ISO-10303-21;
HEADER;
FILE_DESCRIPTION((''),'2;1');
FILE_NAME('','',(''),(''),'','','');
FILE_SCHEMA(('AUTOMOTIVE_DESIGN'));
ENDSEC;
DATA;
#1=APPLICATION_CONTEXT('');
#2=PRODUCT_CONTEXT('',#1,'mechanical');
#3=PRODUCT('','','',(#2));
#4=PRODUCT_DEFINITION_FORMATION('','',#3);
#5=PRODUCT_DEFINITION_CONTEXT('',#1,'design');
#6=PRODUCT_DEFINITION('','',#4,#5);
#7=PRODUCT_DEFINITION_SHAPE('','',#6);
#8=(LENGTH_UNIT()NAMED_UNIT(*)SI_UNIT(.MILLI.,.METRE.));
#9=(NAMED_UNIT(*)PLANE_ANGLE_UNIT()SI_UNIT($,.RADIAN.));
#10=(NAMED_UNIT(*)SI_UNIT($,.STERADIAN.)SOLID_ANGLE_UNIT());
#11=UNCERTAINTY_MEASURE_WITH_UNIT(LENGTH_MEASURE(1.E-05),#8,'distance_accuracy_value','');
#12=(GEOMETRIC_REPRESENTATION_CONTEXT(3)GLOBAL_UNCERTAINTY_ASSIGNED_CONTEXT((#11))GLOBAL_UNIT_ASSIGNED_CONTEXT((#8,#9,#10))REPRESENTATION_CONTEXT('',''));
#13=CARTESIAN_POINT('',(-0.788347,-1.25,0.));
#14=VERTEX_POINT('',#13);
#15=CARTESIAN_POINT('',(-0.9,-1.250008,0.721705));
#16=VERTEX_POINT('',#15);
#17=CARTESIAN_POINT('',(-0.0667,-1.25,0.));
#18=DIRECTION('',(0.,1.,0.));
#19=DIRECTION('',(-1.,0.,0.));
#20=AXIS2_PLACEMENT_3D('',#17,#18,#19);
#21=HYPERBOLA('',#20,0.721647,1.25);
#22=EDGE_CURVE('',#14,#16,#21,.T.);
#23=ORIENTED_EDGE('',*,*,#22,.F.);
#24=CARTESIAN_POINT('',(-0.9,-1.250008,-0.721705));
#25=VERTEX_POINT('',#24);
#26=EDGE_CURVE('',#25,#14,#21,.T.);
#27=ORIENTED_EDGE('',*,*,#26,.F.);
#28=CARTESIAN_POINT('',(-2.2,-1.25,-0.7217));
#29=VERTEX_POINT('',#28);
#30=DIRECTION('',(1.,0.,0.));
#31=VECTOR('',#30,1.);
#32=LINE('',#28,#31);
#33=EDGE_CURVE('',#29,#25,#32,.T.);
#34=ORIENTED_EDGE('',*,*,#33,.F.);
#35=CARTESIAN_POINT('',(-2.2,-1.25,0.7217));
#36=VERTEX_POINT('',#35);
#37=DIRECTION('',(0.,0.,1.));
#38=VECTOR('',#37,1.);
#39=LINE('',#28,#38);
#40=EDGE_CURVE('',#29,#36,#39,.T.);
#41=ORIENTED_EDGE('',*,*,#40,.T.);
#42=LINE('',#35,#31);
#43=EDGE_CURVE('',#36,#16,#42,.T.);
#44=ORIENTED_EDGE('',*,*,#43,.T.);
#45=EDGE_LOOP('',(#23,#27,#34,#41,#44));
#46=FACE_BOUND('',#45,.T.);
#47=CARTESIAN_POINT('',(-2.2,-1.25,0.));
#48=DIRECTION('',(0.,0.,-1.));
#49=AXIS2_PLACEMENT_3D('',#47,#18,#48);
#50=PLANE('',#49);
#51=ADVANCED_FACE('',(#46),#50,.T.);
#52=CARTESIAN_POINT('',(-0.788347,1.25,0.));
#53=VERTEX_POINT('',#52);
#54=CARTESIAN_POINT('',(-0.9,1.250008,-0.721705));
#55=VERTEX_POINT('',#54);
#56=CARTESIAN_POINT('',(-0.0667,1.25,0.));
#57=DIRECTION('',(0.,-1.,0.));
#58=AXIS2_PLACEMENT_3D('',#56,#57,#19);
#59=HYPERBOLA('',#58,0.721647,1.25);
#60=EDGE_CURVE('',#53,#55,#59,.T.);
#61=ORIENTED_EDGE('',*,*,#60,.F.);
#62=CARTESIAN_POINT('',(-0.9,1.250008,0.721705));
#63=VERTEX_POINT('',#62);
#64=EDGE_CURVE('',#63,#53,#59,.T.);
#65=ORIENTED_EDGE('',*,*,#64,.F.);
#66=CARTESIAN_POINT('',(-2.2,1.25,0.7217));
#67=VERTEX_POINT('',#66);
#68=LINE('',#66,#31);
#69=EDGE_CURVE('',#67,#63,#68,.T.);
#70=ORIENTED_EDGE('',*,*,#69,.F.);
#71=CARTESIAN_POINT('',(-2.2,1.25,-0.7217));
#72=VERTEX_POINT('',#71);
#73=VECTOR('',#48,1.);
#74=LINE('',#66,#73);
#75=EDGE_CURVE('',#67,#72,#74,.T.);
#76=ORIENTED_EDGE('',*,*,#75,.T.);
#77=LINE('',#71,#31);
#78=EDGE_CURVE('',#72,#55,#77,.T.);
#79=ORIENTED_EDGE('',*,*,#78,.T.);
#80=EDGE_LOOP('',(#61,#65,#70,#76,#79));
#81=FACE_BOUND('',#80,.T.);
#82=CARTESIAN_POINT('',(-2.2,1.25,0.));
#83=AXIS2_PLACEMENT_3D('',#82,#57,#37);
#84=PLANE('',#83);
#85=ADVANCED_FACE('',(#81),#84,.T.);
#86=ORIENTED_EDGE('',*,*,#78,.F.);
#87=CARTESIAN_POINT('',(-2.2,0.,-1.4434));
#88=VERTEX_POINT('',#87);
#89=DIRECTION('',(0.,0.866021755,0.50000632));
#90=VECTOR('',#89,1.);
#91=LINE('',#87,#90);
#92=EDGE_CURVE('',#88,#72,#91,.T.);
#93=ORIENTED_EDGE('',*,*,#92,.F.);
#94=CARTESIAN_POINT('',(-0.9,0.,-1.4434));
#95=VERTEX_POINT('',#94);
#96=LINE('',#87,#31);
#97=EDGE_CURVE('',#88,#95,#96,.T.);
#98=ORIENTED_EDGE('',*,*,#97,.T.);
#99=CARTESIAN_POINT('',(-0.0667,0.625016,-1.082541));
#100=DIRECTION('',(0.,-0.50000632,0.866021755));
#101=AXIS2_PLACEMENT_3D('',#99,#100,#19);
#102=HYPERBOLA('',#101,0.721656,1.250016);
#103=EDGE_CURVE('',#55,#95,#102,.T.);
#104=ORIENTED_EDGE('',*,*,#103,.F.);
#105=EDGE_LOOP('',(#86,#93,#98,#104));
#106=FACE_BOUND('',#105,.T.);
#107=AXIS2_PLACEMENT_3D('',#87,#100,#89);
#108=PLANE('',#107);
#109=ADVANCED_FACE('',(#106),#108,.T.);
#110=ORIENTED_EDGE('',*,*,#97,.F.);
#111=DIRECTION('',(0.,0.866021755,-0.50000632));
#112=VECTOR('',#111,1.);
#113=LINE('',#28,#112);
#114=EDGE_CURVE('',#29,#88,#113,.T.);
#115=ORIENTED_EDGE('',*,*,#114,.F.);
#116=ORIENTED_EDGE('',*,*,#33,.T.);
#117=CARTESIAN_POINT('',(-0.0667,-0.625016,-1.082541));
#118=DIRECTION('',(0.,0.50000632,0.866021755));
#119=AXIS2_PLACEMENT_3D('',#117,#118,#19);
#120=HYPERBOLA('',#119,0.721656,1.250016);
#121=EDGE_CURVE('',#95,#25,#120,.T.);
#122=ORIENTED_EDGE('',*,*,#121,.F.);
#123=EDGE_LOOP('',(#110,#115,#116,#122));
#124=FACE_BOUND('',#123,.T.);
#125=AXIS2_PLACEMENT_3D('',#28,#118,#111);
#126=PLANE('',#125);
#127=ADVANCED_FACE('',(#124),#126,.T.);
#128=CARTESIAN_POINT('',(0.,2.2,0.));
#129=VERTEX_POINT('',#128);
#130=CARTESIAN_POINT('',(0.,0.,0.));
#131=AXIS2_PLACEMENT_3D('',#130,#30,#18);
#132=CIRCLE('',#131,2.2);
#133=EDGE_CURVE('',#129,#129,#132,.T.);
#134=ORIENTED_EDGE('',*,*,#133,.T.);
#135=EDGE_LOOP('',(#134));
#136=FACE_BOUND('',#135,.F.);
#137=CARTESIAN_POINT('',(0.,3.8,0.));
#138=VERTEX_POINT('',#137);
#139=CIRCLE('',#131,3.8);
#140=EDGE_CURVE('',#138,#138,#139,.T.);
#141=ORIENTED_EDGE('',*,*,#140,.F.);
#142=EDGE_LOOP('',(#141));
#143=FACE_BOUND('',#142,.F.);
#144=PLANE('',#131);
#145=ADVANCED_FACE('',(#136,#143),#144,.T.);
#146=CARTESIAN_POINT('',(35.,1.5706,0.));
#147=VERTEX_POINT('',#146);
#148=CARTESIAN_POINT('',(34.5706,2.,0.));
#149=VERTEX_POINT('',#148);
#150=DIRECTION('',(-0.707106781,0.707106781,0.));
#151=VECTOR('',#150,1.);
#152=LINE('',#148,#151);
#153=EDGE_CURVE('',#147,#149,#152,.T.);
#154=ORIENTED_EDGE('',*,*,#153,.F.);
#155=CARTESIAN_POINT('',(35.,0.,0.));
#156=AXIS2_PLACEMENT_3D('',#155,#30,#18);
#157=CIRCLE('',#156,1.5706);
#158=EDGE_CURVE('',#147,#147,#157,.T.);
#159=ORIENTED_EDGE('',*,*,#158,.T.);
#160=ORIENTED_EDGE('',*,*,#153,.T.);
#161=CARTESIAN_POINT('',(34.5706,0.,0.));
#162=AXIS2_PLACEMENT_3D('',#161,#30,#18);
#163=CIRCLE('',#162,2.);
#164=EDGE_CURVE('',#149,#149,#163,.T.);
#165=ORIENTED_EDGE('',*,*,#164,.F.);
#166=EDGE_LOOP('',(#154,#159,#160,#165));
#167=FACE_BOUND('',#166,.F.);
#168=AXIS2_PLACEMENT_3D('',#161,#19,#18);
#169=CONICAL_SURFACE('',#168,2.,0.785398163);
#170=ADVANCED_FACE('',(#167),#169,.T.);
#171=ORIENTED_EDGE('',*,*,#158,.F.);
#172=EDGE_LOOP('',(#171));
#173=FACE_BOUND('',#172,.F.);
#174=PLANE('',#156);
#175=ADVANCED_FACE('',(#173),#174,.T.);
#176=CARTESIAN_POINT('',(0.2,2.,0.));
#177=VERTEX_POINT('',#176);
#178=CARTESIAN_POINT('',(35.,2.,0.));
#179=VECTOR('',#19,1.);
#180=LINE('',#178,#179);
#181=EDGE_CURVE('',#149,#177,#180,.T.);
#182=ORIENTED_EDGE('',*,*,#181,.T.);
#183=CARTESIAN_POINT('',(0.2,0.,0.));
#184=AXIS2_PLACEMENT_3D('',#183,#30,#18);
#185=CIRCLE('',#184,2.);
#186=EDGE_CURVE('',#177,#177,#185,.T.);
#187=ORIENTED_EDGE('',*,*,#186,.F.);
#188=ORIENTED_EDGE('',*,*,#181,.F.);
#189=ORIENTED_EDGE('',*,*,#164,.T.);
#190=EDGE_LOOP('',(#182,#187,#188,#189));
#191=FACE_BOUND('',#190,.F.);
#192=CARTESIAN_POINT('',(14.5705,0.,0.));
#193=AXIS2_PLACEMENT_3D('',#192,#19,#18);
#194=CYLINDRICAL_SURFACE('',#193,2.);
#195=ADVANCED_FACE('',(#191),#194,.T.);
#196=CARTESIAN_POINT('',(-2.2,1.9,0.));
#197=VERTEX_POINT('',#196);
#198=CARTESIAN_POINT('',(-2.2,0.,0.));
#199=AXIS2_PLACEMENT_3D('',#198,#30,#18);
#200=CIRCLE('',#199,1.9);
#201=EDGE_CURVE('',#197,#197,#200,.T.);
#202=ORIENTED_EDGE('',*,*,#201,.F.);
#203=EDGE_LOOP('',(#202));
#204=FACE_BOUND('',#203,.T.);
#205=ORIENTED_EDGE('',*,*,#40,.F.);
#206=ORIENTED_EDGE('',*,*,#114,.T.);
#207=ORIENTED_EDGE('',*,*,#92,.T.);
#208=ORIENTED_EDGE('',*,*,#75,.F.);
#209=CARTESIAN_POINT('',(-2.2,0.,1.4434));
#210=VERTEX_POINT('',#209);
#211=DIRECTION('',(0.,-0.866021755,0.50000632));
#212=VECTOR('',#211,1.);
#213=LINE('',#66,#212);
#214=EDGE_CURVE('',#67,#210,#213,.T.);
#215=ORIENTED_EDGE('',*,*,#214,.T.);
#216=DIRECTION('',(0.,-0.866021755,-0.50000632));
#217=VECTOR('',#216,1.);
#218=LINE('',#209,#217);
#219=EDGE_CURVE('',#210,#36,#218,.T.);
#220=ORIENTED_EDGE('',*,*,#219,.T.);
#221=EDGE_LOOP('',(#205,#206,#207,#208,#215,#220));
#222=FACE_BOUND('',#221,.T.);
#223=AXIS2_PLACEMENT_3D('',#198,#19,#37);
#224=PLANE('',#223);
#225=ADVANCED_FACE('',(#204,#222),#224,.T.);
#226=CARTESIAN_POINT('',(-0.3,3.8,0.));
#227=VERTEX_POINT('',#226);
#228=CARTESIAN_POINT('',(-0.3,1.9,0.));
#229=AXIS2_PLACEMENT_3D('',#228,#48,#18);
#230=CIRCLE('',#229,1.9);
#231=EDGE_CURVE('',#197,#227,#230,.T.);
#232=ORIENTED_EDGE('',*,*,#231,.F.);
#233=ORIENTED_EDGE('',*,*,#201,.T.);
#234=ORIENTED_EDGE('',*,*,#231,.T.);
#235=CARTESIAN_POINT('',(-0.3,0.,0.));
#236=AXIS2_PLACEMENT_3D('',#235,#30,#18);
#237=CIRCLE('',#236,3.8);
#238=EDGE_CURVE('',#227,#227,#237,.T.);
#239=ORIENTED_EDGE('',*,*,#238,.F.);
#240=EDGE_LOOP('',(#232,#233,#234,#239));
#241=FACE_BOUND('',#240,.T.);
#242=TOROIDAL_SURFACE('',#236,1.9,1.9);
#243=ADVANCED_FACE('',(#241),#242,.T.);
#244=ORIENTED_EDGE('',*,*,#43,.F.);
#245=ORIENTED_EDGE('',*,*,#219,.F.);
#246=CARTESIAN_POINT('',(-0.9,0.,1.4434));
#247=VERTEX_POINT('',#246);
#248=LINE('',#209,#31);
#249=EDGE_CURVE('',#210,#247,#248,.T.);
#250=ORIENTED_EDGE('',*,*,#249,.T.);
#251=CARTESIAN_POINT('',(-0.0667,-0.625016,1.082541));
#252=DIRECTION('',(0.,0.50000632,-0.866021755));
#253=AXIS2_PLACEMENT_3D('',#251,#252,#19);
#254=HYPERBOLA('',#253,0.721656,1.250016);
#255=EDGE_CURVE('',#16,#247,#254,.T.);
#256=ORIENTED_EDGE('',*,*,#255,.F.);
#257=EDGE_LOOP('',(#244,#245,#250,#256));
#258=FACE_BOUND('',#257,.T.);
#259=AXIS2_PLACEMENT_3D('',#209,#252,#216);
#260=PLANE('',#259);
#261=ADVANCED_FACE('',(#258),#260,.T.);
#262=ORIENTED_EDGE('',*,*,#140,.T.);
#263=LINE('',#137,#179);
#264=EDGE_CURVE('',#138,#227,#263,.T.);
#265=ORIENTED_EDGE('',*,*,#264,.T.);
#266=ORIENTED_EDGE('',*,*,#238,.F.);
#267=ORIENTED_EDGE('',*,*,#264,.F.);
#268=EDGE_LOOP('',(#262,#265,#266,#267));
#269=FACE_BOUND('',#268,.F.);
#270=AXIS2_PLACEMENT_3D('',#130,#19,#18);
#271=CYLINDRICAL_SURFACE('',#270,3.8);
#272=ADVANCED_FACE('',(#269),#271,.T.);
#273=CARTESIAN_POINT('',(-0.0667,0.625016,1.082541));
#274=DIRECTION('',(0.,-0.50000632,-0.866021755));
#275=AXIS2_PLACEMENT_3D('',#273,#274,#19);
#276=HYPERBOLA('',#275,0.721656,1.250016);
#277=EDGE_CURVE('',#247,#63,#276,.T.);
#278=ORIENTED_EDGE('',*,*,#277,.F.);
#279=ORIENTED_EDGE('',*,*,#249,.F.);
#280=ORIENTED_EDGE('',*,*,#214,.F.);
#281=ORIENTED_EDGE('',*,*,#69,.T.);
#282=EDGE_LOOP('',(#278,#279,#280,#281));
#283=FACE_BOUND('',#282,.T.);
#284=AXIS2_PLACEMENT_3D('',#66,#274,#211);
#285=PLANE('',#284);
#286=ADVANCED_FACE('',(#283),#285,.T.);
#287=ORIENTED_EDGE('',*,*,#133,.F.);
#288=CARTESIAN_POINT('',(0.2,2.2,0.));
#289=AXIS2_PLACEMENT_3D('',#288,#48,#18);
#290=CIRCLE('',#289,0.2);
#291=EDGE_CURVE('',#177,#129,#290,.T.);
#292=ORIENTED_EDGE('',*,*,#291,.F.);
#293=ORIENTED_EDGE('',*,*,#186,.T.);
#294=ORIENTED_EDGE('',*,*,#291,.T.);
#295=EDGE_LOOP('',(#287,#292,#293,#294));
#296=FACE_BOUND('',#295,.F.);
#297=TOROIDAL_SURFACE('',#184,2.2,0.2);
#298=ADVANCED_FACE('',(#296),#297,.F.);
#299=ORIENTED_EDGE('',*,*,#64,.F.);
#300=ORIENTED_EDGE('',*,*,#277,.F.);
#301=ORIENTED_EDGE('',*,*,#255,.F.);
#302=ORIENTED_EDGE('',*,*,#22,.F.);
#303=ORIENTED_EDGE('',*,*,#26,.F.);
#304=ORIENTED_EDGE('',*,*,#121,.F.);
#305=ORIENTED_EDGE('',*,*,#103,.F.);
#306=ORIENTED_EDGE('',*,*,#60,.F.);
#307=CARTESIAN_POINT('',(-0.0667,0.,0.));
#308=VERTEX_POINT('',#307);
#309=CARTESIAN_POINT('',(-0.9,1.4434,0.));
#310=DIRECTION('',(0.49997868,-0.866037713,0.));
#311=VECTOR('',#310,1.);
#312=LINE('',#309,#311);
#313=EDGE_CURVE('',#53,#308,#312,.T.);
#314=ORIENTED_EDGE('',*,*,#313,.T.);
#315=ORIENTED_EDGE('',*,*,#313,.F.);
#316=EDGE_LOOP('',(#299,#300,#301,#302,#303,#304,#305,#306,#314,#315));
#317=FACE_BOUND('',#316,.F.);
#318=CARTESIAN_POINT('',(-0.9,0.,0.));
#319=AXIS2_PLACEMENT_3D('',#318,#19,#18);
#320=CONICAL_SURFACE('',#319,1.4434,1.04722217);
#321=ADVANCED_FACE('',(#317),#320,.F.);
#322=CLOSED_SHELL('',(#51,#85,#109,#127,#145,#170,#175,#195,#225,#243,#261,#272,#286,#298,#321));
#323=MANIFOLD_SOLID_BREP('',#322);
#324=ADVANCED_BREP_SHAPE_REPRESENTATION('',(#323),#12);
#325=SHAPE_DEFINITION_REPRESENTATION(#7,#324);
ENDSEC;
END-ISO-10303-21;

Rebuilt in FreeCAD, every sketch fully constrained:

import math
import FreeCAD as App
import Part
import Sketcher
Q = App.Units.Quantity


def edges_at(feature, points):
    """Names of the edges that pass closest to the given points."""
    edges = feature.Shape.Edges
    near = lambda p: min(range(len(edges)), key=lambda i: edges[i].distToShape(Part.Vertex(*p))[0])
    return sorted({f"Edge{near(p) + 1}" for p in points})


def add_polygon(sketch, points):
    """Adds a closed chain of lines whose ends are joined by coincident constraints."""
    first, n = sketch.GeometryCount, len(points)
    for a, b in zip(points, points[1:] + points[:1]):
        sketch.addGeometry(Part.LineSegment(App.Vector(*a, 0), App.Vector(*b, 0)), False)
    for i in range(n):
        sketch.addConstraint(Sketcher.Constraint("Coincident", first + i, 2, first + (i + 1) % n, 1))

doc = App.newDocument("Part")
body = doc.addObject("PartDesign::Body", "Body")

sketch1 = body.newObject("Sketcher::SketchObject", "Sketch")
sketch1.AttachmentSupport = (doc.getObject("XY_Plane"), [""])
sketch1.MapMode = "FlatFace"
add_polygon(sketch1, [(-0.9, 1.4434), (-0.0667, 0), (35, 0), (35, 2), (0, 2), (0, 3.8), (-2.2, 3.8), (-2.2, 1.4434)])
sketch1.addConstraint(Sketcher.Constraint("Horizontal", 1))
sketch1.addConstraint(Sketcher.Constraint("Vertical", 2))
sketch1.addConstraint(Sketcher.Constraint("Horizontal", 3))
sketch1.addConstraint(Sketcher.Constraint("Vertical", 4))
sketch1.addConstraint(Sketcher.Constraint("Horizontal", 5))
sketch1.addConstraint(Sketcher.Constraint("Vertical", 6))
sketch1.addConstraint(Sketcher.Constraint("Horizontal", 7))
sketch1.addConstraint(Sketcher.Constraint("PointOnObject", 0, 2, -1))
sketch1.addConstraint(Sketcher.Constraint("PointOnObject", 3, 2, -2))
sketch1.addConstraint(Sketcher.Constraint("DistanceX", 3, 2, 3, 1, 35.0))
sketch1.addConstraint(Sketcher.Constraint("DistanceX", 5, 2, 5, 1, 2.2))
sketch1.addConstraint(Sketcher.Constraint("DistanceX", 7, 1, 7, 2, 1.3))
sketch1.addConstraint(Sketcher.Constraint("DistanceY", 2, 1, 2, 2, 2.0))
sketch1.addConstraint(Sketcher.Constraint("DistanceY", 4, 1, 4, 2, 1.8))
sketch1.addConstraint(Sketcher.Constraint("DistanceX", 1, 1, 1, 2, 35.0667))
sketch1.addConstraint(Sketcher.Constraint("DistanceY", 6, 2, 6, 1, 2.3566))
revolution = body.newObject("PartDesign::Revolution", "Revolution")
revolution.Profile = sketch1
revolution.ReferenceAxis = (sketch1, ["H_Axis"])
revolution.Angle = 360

sketch2 = body.newObject("Sketcher::SketchObject", "Sketch001")
sketch2.AttachmentSupport = (doc.getObject("YZ_Plane"), [""])
sketch2.MapMode = "FlatFace"
sketch2.AttachmentOffset = App.Placement(App.Vector(0, 0, -2.2), App.Rotation())
sketch2.addGeometry(Part.LineSegment(App.Vector(1.25, 0.7217, 0), App.Vector(0, 1.4434, 0)), False)
sketch2.addGeometry(Part.ArcOfCircle(Part.Circle(App.Vector(0, 0, 0), App.Vector(0, 0, 1), 1.4434), math.radians(30.000418), math.radians(90)), False)
sketch2.addGeometry(Part.ArcOfCircle(Part.Circle(App.Vector(0, 0, 0), App.Vector(0, 0, 1), 1.4434), math.radians(90), math.radians(149.999582)), False)
sketch2.addGeometry(Part.LineSegment(App.Vector(0, 1.4434, 0), App.Vector(-1.25, 0.7217, 0)), False)
sketch2.addGeometry(Part.ArcOfCircle(Part.Circle(App.Vector(0, 0, 0), App.Vector(0, 0, 1), 1.4434), math.radians(-30.000418), math.radians(30.000418)), False)
sketch2.addGeometry(Part.LineSegment(App.Vector(1.25, 0.7217, 0), App.Vector(1.25, -0.7217, 0)), False)
sketch2.addGeometry(Part.LineSegment(App.Vector(-1.25, 0.7217, 0), App.Vector(-1.25, -0.7217, 0)), False)
sketch2.addGeometry(Part.ArcOfCircle(Part.Circle(App.Vector(0, 0, 0), App.Vector(0, 0, 1), 1.4434), math.radians(149.999582), math.radians(210.000418)), False)
sketch2.addGeometry(Part.LineSegment(App.Vector(-1.25, -0.7217, 0), App.Vector(0, -1.4434, 0)), False)
sketch2.addGeometry(Part.ArcOfCircle(Part.Circle(App.Vector(0, 0, 0), App.Vector(0, 0, 1), 1.4434), math.radians(-149.999582), math.radians(-90)), False)
sketch2.addGeometry(Part.ArcOfCircle(Part.Circle(App.Vector(0, 0, 0), App.Vector(0, 0, 1), 1.4434), math.radians(-90), math.radians(-30.000418)), False)
sketch2.addGeometry(Part.LineSegment(App.Vector(0, -1.4434, 0), App.Vector(1.25, -0.7217, 0)), False)
sketch2.addConstraint(Sketcher.Constraint("Coincident", 0, 1, 1, 1))
sketch2.addConstraint(Sketcher.Constraint("Coincident", 1, 2, 0, 2))
sketch2.addConstraint(Sketcher.Constraint("Coincident", 2, 1, 3, 1))
sketch2.addConstraint(Sketcher.Constraint("Coincident", 3, 2, 2, 2))
sketch2.addConstraint(Sketcher.Constraint("Coincident", 4, 1, 5, 2))
sketch2.addConstraint(Sketcher.Constraint("Coincident", 5, 1, 4, 2))
sketch2.addConstraint(Sketcher.Constraint("Coincident", 6, 1, 7, 1))
sketch2.addConstraint(Sketcher.Constraint("Coincident", 7, 2, 6, 2))
sketch2.addConstraint(Sketcher.Constraint("Coincident", 8, 1, 9, 1))
sketch2.addConstraint(Sketcher.Constraint("Coincident", 9, 2, 8, 2))
sketch2.addConstraint(Sketcher.Constraint("Coincident", 10, 1, 11, 1))
sketch2.addConstraint(Sketcher.Constraint("Coincident", 11, 2, 10, 2))
sketch2.addConstraint(Sketcher.Constraint("Vertical", 5))
sketch2.addConstraint(Sketcher.Constraint("Vertical", 6))
sketch2.addConstraint(Sketcher.Constraint("Coincident", 1, 3, -1, 1))
sketch2.addConstraint(Sketcher.Constraint("Coincident", 2, 3, -1, 1))
sketch2.addConstraint(Sketcher.Constraint("Coincident", 4, 3, -1, 1))
sketch2.addConstraint(Sketcher.Constraint("Coincident", 7, 3, -1, 1))
sketch2.addConstraint(Sketcher.Constraint("Coincident", 9, 3, -1, 1))
sketch2.addConstraint(Sketcher.Constraint("Coincident", 10, 3, -1, 1))
sketch2.addConstraint(Sketcher.Constraint("Coincident", 2, 1, 1, 2))
sketch2.addConstraint(Sketcher.Constraint("Coincident", 5, 1, 0, 1))
sketch2.addConstraint(Sketcher.Constraint("Coincident", 6, 1, 3, 2))
sketch2.addConstraint(Sketcher.Constraint("Coincident", 8, 1, 7, 2))
sketch2.addConstraint(Sketcher.Constraint("Coincident", 10, 1, 9, 2))
sketch2.addConstraint(Sketcher.Constraint("PointOnObject", 1, 2, -2))
sketch2.addConstraint(Sketcher.Constraint("PointOnObject", 9, 2, -2))
sketch2.addConstraint(Sketcher.Constraint("Parallel", 0, 8))
sketch2.addConstraint(Sketcher.Constraint("Parallel", 3, 11))
sketch2.addConstraint(Sketcher.Constraint("Angle", 0, Q("149.9996 deg")))
sketch2.addConstraint(Sketcher.Constraint("Radius", 1, 1.4434))
pad1 = body.newObject("PartDesign::Pad", "Pad")
pad1.Profile = sketch2
pad1.Type = "UpToFirst"
doc.recompute()

fillet = body.newObject("PartDesign::Fillet", "Fillet")
fillet.Base = (pad1, edges_at(pad1, [(-2.2, -3.8, 0)]))
fillet.Radius = 1.9
doc.recompute()

chamfer = body.newObject("PartDesign::Chamfer", "Chamfer")
chamfer.Base = (fillet, edges_at(fillet, [(35, -2, 0)]))
chamfer.ChamferType = "Two distances"
chamfer.Size = 0.4294
chamfer.Size2 = 0.4294
doc.recompute()

fillet2 = body.newObject("PartDesign::Fillet", "Fillet001")
fillet2.Base = (chamfer, edges_at(chamfer, [(0, -2, 0)]))
fillet2.Radius = 0.2

doc.recompute()
